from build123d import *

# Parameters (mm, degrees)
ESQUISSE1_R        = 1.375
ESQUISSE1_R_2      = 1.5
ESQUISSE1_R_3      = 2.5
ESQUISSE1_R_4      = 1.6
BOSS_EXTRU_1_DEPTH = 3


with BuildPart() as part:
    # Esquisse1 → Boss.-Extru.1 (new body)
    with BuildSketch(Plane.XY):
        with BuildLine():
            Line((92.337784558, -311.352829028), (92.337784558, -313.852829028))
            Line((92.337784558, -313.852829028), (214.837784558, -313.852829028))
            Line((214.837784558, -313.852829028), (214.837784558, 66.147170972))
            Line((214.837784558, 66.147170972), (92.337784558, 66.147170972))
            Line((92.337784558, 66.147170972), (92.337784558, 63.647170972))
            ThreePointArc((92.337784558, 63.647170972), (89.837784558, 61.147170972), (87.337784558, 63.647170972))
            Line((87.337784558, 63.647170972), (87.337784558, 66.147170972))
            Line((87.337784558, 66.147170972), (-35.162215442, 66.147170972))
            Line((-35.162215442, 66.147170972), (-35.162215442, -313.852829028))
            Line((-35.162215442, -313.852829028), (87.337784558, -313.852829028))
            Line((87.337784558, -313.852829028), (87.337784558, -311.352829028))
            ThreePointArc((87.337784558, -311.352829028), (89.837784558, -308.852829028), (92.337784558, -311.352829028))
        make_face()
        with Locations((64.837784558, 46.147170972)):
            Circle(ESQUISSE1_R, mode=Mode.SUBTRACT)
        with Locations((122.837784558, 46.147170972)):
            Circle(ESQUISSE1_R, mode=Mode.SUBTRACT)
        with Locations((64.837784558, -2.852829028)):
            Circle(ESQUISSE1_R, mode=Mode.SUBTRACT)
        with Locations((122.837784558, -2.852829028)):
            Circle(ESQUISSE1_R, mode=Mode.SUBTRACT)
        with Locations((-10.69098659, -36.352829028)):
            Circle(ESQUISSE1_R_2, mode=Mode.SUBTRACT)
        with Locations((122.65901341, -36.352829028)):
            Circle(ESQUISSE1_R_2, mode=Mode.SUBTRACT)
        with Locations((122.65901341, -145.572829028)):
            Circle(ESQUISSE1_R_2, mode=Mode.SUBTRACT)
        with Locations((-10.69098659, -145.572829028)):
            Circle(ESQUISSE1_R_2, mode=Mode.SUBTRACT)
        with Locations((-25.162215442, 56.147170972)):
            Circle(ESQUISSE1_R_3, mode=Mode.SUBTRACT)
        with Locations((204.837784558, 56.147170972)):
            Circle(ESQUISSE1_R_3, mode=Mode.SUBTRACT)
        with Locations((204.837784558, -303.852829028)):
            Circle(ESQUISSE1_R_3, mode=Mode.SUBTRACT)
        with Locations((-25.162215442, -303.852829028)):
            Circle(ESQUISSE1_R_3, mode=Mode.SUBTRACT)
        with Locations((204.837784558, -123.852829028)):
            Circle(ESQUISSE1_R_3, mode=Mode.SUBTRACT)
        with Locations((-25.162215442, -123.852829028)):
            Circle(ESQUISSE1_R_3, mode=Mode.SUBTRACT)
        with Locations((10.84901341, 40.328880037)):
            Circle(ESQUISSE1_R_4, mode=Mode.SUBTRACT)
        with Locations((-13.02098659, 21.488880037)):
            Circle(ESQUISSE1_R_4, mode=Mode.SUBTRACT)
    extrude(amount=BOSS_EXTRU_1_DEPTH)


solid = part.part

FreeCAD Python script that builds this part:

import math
import FreeCAD as App
import Part
import Sketcher

doc = App.newDocument("Part")
body = doc.addObject("PartDesign::Body", "Body")

# Sketch on XY plane
sketch1 = doc.addObject("Sketcher::SketchObject", "Sketch")
body.addObject(sketch1)
sketch1.AttachmentSupport = (doc.XY_Plane, [""])
sketch1.MapMode = "FlatFace"
sketch1.addGeometry([
    Part.LineSegment(App.Vector(92.3, -311.4, 0), App.Vector(92.3, -313.9, 0)),  # 0
    Part.LineSegment(App.Vector(92.3, -313.9, 0), App.Vector(214.8, -313.9, 0)),  # 1
    Part.LineSegment(App.Vector(214.8, -313.9, 0), App.Vector(214.8, 66.1, 0)),  # 2
    Part.LineSegment(App.Vector(214.8, 66.1, 0), App.Vector(92.3, 66.1, 0)),  # 3
    Part.LineSegment(App.Vector(92.3, 66.1, 0), App.Vector(92.3, 63.6, 0)),  # 4
    Part.ArcOfCircle(Part.Circle(App.Vector(89.8, 63.6, 0), App.Vector(0, 0, 1), 2.5), math.radians(180), math.radians(360)),  # 5
    Part.LineSegment(App.Vector(87.3, 63.6, 0), App.Vector(87.3, 66.1, 0)),  # 6
    Part.LineSegment(App.Vector(87.3, 66.1, 0), App.Vector(-35.2, 66.1, 0)),  # 7
    Part.LineSegment(App.Vector(-35.2, 66.1, 0), App.Vector(-35.2, -313.9, 0)),  # 8
    Part.LineSegment(App.Vector(-35.2, -313.9, 0), App.Vector(87.3, -313.9, 0)),  # 9
    Part.LineSegment(App.Vector(87.3, -313.9, 0), App.Vector(87.3, -311.4, 0)),  # 10
    Part.ArcOfCircle(Part.Circle(App.Vector(89.8, -311.4, 0), App.Vector(0, 0, 1), 2.5), math.radians(0), math.radians(180)),  # 11
    Part.Circle(App.Vector(-25.2, -303.9, 0), App.Vector(0, 0, 1), 2.5),  # 12
    Part.Circle(App.Vector(-10.7, -145.6, 0), App.Vector(0, 0, 1), 1.5),  # 13
    Part.Circle(App.Vector(204.8, -303.9, 0), App.Vector(0, 0, 1), 2.5),  # 14
    Part.Circle(App.Vector(122.7, -145.6, 0), App.Vector(0, 0, 1), 1.5),  # 15
    Part.Circle(App.Vector(-25.2, -123.9, 0), App.Vector(0, 0, 1), 2.5),  # 16
    Part.Circle(App.Vector(-10.7, -36.4, 0), App.Vector(0, 0, 1), 1.5),  # 17
    Part.Circle(App.Vector(-13, 21.5, 0), App.Vector(0, 0, 1), 1.6),  # 18
    Part.Circle(App.Vector(-25.2, 56.1, 0), App.Vector(0, 0, 1), 2.5),  # 19
    Part.Circle(App.Vector(10.8, 40.3, 0), App.Vector(0, 0, 1), 1.6),  # 20
    Part.Circle(App.Vector(64.8, -2.9, 0), App.Vector(0, 0, 1), 1.4),  # 21
    Part.Circle(App.Vector(64.8, 46.1, 0), App.Vector(0, 0, 1), 1.4),  # 22
    Part.Circle(App.Vector(122.7, -36.4, 0), App.Vector(0, 0, 1), 1.5),  # 23
    Part.Circle(App.Vector(204.8, -123.9, 0), App.Vector(0, 0, 1), 2.5),  # 24
    Part.Circle(App.Vector(122.8, -2.9, 0), App.Vector(0, 0, 1), 1.4),  # 25
    Part.Circle(App.Vector(122.8, 46.1, 0), App.Vector(0, 0, 1), 1.4),  # 26
    Part.Circle(App.Vector(204.8, 56.1, 0), App.Vector(0, 0, 1), 2.5),  # 27
], False)
sketch1.addConstraint([
    Sketcher.Constraint("Coincident", 0, 2, 1, 1),
    Sketcher.Constraint("Coincident", 1, 2, 2, 1),
    Sketcher.Constraint("Coincident", 2, 2, 3, 1),
    Sketcher.Constraint("Coincident", 3, 2, 4, 1),
    Sketcher.Constraint("Tangent", 4, 2, 5, 2),
    Sketcher.Constraint("Tangent", 5, 1, 6, 1),
    Sketcher.Constraint("Coincident", 6, 2, 7, 1),
    Sketcher.Constraint("Coincident", 7, 2, 8, 1),
    Sketcher.Constraint("Coincident", 8, 2, 9, 1),
    Sketcher.Constraint("Coincident", 9, 2, 10, 1),
    Sketcher.Constraint("Tangent", 10, 2, 11, 2),
    Sketcher.Constraint("Tangent", 11, 1, 0, 1),
    Sketcher.Constraint("Vertical", 0),
    Sketcher.Constraint("Horizontal", 1),
    Sketcher.Constraint("Vertical", 2),
    Sketcher.Constraint("Horizontal", 3),
    Sketcher.Constraint("Vertical", 4),
    Sketcher.Constraint("Vertical", 6),
    Sketcher.Constraint("Horizontal", 7),
    Sketcher.Constraint("Vertical", 8),
    Sketcher.Constraint("Horizontal", 9),
    Sketcher.Constraint("Vertical", 10),
    Sketcher.Constraint("Equal", 5, 11),
    Sketcher.Constraint("Equal", 11, 12),
    Sketcher.Constraint("Equal", 12, 14),
    Sketcher.Constraint("Equal", 13, 15),
    Sketcher.Constraint("Equal", 14, 16),
    Sketcher.Constraint("Equal", 15, 17),
    Sketcher.Constraint("Equal", 16, 19),
    Sketcher.Constraint("Equal", 18, 20),
    Sketcher.Constraint("Equal", 21, 22),
    Sketcher.Constraint("Equal", 17, 23),
    Sketcher.Constraint("Equal", 19, 24),
    Sketcher.Constraint("Equal", 22, 25),
    Sketcher.Constraint("Equal", 25, 26),
    Sketcher.Constraint("Equal", 24, 27),
    Sketcher.Constraint("Horizontal", 12, 3, 14, 3),
    Sketcher.Constraint("Horizontal", 13, 3, 15, 3),
    Sketcher.Constraint("Horizontal", 17, 3, 23, 3),
    Sketcher.Constraint("Horizontal", 16, 3, 24, 3),
    Sketcher.Constraint("Horizontal", 21, 3, 25, 3),
    Sketcher.Constraint("Horizontal", 22, 3, 26, 3),
    Sketcher.Constraint("Horizontal", 19, 3, 27, 3),
    Sketcher.Constraint("Horizontal", 3, 2, 6, 2),
    Sketcher.Constraint("Horizontal", 1, 2, 8, 2),
    Sketcher.Constraint("Vertical", 5, 3, 11, 3),
    Sketcher.Constraint("Vertical", 12, 3, 16, 3),
    Sketcher.Constraint("Vertical", 13, 3, 17, 3),
    Sketcher.Constraint("Vertical", 16, 3, 19, 3),
    Sketcher.Constraint("Vertical", 21, 3, 22, 3),
    Sketcher.Constraint("Vertical", 15, 3, 23, 3),
    Sketcher.Constraint("Vertical", 14, 3, 24, 3),
    Sketcher.Constraint("Vertical", 25, 3, 26, 3),
    Sketcher.Constraint("Vertical", 24, 3, 27, 3),
    Sketcher.Constraint("Equal", 3, 7),
    Sketcher.Constraint("Equal", 0, 4),
    Sketcher.Constraint("Diameter", 12, 5.0),
    Sketcher.Constraint("Diameter", 13, 3.0),
    Sketcher.Constraint("Diameter", 18, 3.2),
    Sketcher.Constraint("Diameter", 21, 2.75),
    Sketcher.Constraint("DistanceY", 2, 1, 2, 2, 380.0),
    Sketcher.Constraint("DistanceX", 1, 1, 1, 2, 122.5),
    Sketcher.Constraint("DistanceY", 0, 2, 0, 1, 2.5),
    Sketcher.Constraint("DistanceX", 12, 3, 11, 3, 115.0),
    Sketcher.Constraint("DistanceX", 11, 3, 14, 3, 115.0),
    Sketcher.Constraint("DistanceY", 12, 3, 16, 3, 180.0),
    Sketcher.Constraint("DistanceY", 17, 3, 5, 3, 100.0),
    Sketcher.Constraint("DistanceY", 16, 3, 19, 3, 180.0),
    Sketcher.Constraint("DistanceX", 21, 3, 5, 3, 25.0),
    Sketcher.Constraint("DistanceY", 21, 3, 19, 3, 59.0),
    Sketcher.Constraint("DistanceY", 21, 3, 22, 3, 49.0),
    Sketcher.Constraint("DistanceX", 21, 3, 25, 3, 58.0),
    Sketcher.Constraint("DistanceY", 0, 2, 14, 3, 10.0),
    Sketcher.Constraint("DistanceY", 12, 3, 13, 3, 158.28),
    Sketcher.Constraint("DistanceX", 13, 3, 15, 3, 133.35),
    Sketcher.Constraint("DistanceX", 18, 3, 17, 3, 2.33),
    Sketcher.Constraint("DistanceX", 18, 3, 20, 3, 23.87),
    Sketcher.Constraint("DistanceY", 18, 3, 20, 3, 18.84),
    Sketcher.Constraint("DistanceY", -1, 1, 5, 3, 63.647171),
    Sketcher.Constraint("DistanceY", -1, 1, 18, 3, 21.48888),
    Sketcher.Constraint("DistanceX", 12, 3, 13, 3, 14.471229),
    Sketcher.Constraint("DistanceX", -1, 1, 5, 3, 89.837785),
])
pad1 = doc.addObject("PartDesign::Pad", "Pad")
body.addObject(pad1)
pad1.Profile = sketch1
pad1.Length = 3

doc.recompute()
